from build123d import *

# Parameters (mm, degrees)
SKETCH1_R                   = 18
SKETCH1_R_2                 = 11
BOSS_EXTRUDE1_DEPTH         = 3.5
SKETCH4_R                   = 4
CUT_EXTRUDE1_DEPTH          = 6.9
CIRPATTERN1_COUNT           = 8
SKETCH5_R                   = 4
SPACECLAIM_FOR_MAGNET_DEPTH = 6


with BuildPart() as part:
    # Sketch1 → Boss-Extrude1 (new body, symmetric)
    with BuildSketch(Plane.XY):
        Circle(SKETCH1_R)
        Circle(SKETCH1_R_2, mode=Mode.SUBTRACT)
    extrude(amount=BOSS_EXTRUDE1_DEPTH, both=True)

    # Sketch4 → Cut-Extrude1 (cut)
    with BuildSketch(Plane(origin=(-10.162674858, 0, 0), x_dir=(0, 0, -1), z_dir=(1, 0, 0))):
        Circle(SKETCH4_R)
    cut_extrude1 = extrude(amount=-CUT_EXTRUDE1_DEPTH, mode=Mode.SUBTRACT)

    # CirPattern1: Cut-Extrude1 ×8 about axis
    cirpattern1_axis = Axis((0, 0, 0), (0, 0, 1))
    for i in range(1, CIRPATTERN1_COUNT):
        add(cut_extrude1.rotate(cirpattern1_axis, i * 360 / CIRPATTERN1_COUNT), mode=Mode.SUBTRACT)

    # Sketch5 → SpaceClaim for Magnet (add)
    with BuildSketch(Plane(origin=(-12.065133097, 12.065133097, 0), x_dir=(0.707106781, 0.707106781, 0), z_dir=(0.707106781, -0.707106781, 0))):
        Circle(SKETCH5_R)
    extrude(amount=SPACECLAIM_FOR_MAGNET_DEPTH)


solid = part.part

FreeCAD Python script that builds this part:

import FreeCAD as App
import Part
import Sketcher

V = App.Vector
Q = App.Units.Quantity

doc = App.newDocument("Part")
body = doc.addObject("PartDesign::Body", "Body")

sketch1 = body.newObject("Sketcher::SketchObject", "Sketch")
sketch1.AttachmentSupport = (doc.getObject("XY_Plane"), [""])
sketch1.MapMode = "FlatFace"
sketch1.addGeometry(Part.Circle(V(0, 0, 0), V(0, 0, 1), 18), False)
sketch1.addGeometry(Part.Circle(V(0, 0, 0), V(0, 0, 1), 11), False)
sketch1.addConstraint(Sketcher.Constraint("Coincident", 0, 3, -1, 1))
sketch1.addConstraint(Sketcher.Constraint("Coincident", 1, 3, -1, 1))
sketch1.addConstraint(Sketcher.Constraint("Diameter", 0, Q("36 mm")))
sketch1.addConstraint(Sketcher.Constraint("Diameter", 1, Q("22 mm")))
pad1 = body.newObject("PartDesign::Pad", "Pad")
pad1.Profile = sketch1
pad1.Length = 7
pad1.Midplane = True

sketch2 = body.newObject("Sketcher::SketchObject", "Sketch001")
sketch2.AttachmentSupport = (doc.getObject("YZ_Plane"), [""])
sketch2.MapMode = "FlatFace"
sketch2.AttachmentOffset = App.Placement(V(0, 0, -10.162675), App.Rotation())
sketch2.addGeometry(Part.Circle(V(0, 0, 0), V(0, 0, 1), 4), False)
sketch2.addConstraint(Sketcher.Constraint("Coincident", 0, 3, -1, 1))
sketch2.addConstraint(Sketcher.Constraint("Diameter", 0, Q("8 mm")))
pocket1 = body.newObject("PartDesign::Pocket", "Pocket")
pocket1.Profile = sketch2
pocket1.Length = 6.9
doc.recompute()

polarpattern = body.newObject("PartDesign::PolarPattern", "PolarPattern")
polarpattern.Originals = [pocket1]
polarpattern.Axis = (doc.getObject("Z_Axis"), [""])
polarpattern.Angle = 360
polarpattern.Occurrences = 8
body.Tip = polarpattern

sketch3 = body.newObject("Sketcher::SketchObject", "Sketch002")
sketch3.Placement = App.Placement(V(-12.065133, 12.065133, 0), App.Rotation(V(0.707106781, 0.707106781, 0), V(0, 0, 0.999999999), V(0.707106781, -0.707106781, 0), "ZXY"))
sketch3.addGeometry(Part.Circle(V(0, 0, 0), V(0, 0, 1), 4), False)
sketch3.addConstraint(Sketcher.Constraint("Coincident", 0, 3, -1, 1))
sketch3.addConstraint(Sketcher.Constraint("Diameter", 0, Q("8 mm")))
pad2 = body.newObject("PartDesign::Pad", "Pad001")
pad2.Profile = sketch3
pad2.Length = 6

doc.recompute()
